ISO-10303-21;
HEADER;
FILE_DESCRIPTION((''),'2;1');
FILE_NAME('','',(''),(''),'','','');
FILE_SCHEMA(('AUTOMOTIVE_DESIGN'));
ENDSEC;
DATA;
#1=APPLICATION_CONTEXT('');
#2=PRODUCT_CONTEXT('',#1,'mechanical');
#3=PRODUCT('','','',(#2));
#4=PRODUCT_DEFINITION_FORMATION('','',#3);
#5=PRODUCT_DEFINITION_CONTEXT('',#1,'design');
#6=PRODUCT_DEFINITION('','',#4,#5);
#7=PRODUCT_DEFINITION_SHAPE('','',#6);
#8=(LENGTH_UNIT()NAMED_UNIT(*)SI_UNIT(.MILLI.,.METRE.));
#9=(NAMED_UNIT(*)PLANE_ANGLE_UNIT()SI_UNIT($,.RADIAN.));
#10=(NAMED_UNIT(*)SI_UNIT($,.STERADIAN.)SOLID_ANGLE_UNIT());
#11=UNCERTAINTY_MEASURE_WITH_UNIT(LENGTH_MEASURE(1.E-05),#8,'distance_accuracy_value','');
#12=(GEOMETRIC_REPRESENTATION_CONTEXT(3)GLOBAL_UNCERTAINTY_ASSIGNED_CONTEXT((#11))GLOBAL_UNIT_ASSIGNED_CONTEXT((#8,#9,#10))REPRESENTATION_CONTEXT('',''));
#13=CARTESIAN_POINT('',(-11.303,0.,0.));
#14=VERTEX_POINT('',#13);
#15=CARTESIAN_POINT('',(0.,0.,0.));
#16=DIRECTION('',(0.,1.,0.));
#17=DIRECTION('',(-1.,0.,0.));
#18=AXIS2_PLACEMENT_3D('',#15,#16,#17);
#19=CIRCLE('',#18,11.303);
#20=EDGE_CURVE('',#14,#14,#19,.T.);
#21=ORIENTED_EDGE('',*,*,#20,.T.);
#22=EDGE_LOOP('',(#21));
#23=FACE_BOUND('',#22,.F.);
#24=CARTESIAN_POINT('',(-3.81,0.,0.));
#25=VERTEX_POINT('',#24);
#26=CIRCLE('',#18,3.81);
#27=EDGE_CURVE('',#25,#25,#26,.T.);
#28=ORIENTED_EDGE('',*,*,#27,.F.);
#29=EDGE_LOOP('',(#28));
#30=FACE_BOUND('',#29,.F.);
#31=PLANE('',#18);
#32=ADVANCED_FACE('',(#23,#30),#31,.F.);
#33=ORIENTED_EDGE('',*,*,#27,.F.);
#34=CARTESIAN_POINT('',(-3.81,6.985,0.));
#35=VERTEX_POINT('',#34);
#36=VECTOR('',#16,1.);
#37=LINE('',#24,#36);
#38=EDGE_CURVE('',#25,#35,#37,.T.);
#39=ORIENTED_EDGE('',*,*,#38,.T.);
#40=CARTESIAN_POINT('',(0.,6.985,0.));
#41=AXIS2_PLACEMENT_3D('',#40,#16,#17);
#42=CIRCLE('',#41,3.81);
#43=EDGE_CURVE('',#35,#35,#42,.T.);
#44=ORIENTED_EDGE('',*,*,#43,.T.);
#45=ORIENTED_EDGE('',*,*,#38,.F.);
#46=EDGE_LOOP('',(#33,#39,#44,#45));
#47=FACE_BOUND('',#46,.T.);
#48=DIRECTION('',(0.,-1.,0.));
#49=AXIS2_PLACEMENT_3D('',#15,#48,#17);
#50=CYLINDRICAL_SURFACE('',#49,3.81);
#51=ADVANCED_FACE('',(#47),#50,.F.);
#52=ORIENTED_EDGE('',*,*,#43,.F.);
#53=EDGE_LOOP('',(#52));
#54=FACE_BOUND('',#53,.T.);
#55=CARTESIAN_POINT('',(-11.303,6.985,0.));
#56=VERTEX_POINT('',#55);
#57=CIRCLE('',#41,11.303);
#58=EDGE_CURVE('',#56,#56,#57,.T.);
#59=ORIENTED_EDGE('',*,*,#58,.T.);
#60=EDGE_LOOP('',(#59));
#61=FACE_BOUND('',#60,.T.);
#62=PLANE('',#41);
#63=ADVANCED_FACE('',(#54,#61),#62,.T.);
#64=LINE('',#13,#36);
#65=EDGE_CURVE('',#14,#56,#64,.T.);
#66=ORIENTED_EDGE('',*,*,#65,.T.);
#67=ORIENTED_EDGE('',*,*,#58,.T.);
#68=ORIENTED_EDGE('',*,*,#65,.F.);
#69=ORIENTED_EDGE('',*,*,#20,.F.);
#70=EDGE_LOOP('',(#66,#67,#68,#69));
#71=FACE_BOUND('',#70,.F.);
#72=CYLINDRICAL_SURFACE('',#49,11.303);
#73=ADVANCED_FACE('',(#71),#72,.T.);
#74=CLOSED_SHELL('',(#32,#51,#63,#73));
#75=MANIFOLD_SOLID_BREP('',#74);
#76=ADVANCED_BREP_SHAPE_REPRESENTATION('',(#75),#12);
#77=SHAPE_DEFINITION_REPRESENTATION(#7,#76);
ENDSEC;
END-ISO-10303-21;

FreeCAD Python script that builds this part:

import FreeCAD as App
import Part
import Sketcher
from FreeCAD import Vector
Q = App.Units.Quantity

doc = App.newDocument("Part")
params = doc.addObject("Spreadsheet::Sheet", "Params")
for row, (alias, value) in enumerate([
    ("sketch1_diameter", "0.3 in"),
    ("sketch1_diameter2", "0.89 in"),
    ("pad1_length", "0.275 in"),
], start=1):
    params.set(f"A{row}", alias)
    params.set(f"B{row}", "=" + value)
    params.setAlias(f"B{row}", alias)

body = doc.addObject("PartDesign::Body", "Body")

# Sketch on XZ plane
sketch1 = body.newObject("Sketcher::SketchObject", "Sketch")
sketch1.AttachmentSupport = (doc.getObject("XZ_Plane"), [""])
sketch1.MapMode = "FlatFace"
sketch1.addGeometry([
    Part.Circle(Vector(0, 0, 0), Vector(0, 0, 1), 11.3),
    Part.Circle(Vector(0, 0, 0), Vector(0, 0, 1), 3.8),
], False)
sketch1.addConstraint([
    Sketcher.Constraint("Coincident", 0, 3, -1, 1),
    Sketcher.Constraint("Coincident", 1, 3, -1, 1),
    Sketcher.Constraint("Diameter", 1, Q("0.3 in")),
    Sketcher.Constraint("Diameter", 0, Q("0.89 in")),
])
sketch1.setExpression("Constraints[2]", "Params.sketch1_diameter")
sketch1.setExpression("Constraints[3]", "Params.sketch1_diameter2")
pad1 = body.newObject("PartDesign::Pad", "Pad")
pad1.Profile = sketch1
pad1.setExpression("Length", "Params.pad1_length")
pad1.Reversed = True

doc.recompute()
